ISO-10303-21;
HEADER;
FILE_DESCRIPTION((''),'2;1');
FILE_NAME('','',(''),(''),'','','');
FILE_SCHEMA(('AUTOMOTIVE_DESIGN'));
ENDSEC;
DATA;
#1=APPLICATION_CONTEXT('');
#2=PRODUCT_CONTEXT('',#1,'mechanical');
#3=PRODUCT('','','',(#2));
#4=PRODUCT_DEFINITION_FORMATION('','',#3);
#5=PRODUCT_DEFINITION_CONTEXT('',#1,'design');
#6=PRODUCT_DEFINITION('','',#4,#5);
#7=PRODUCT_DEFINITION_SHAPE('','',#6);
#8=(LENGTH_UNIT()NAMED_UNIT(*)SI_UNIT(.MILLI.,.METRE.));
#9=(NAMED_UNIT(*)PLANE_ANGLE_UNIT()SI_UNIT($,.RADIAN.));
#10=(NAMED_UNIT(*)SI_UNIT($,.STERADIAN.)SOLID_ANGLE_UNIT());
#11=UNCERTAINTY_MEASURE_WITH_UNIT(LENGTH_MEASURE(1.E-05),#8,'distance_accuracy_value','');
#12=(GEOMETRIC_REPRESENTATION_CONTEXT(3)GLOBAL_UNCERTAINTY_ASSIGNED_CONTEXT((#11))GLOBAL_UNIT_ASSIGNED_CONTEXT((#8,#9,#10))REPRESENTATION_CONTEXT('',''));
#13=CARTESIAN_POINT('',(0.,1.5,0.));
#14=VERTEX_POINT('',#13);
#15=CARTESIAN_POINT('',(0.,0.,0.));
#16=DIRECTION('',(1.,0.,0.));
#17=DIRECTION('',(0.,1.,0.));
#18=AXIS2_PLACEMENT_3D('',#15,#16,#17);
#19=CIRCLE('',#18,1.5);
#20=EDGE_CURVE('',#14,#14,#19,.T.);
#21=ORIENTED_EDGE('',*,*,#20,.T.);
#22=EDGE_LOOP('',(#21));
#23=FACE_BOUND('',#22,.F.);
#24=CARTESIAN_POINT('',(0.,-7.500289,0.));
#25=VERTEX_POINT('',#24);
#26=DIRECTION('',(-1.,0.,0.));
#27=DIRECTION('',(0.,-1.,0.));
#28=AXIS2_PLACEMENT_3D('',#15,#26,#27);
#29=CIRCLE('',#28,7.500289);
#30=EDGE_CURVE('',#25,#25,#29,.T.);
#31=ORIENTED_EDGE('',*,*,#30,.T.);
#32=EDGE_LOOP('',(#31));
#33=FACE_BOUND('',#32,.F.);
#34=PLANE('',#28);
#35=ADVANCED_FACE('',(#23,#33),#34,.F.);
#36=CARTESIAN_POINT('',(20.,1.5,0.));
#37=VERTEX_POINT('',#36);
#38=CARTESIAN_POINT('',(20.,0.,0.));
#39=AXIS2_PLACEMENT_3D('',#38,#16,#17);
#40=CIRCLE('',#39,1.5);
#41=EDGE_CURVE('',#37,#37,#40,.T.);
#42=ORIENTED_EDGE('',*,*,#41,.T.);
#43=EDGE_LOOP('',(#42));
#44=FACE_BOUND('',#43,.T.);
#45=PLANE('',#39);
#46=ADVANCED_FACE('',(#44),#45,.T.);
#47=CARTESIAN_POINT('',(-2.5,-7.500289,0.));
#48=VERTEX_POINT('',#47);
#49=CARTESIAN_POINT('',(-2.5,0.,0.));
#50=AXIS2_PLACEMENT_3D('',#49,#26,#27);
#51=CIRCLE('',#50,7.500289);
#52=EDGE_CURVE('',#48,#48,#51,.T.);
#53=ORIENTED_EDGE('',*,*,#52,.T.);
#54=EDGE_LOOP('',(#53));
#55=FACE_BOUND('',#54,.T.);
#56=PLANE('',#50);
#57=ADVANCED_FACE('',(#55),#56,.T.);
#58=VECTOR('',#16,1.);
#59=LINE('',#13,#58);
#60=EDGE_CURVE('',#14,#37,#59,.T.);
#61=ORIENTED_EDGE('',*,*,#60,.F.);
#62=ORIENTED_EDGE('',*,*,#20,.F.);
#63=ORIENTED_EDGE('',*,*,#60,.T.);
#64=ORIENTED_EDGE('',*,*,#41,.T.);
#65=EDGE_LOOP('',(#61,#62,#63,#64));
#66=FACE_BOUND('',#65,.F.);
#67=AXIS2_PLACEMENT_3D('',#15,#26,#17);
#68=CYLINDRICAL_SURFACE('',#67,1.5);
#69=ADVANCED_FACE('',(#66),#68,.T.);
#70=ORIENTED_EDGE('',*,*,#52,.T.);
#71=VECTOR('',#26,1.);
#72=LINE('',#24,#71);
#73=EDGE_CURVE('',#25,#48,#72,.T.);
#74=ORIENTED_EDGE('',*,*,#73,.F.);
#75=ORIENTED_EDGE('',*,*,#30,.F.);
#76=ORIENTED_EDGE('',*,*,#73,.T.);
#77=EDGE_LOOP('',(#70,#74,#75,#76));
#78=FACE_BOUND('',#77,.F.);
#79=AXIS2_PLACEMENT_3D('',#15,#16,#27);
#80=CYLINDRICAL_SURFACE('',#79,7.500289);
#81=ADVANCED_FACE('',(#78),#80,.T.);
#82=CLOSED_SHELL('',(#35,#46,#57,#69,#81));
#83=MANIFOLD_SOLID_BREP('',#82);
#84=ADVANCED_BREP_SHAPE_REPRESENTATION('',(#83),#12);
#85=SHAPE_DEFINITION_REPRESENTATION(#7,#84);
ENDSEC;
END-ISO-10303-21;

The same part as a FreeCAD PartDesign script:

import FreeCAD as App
import Part
import Sketcher
Q = App.Units.Quantity

doc = App.newDocument("Part")
params = doc.addObject("Spreadsheet::Sheet", "Params")
for row, (alias, value) in enumerate([
    ("sketch1_diameter", "3 mm"),
    ("pad1_length", "20 mm"),
    ("pad2_length", "2.5 mm"),
], start=1):
    params.set(f"A{row}", alias)
    params.set(f"B{row}", "=" + value)
    params.setAlias(f"B{row}", alias)

body = doc.addObject("PartDesign::Body", "Body")

# Sketch on YZ plane
sketch1 = body.newObject("Sketcher::SketchObject", "Sketch")
sketch1.AttachmentSupport = (doc.getObject("YZ_Plane"), [""])
sketch1.MapMode = "FlatFace"
sketch1.addGeometry(Part.Circle(App.Vector(0, 0, 0), App.Vector(0, 0, 1), 1.5), False)
sketch1.addConstraint(Sketcher.Constraint("Coincident", 0, 3, -1, 1))
sketch1.addConstraint(Sketcher.Constraint("Diameter", 0, Q("3 mm")))
sketch1.setExpression("Constraints[1]", "Params.sketch1_diameter")
pad1 = body.newObject("PartDesign::Pad", "Pad")
pad1.Profile = sketch1
pad1.setExpression("Length", "Params.pad1_length")

# Sketch on YZ plane
sketch2 = body.newObject("Sketcher::SketchObject", "Sketch001")
sketch2.AttachmentSupport = (doc.getObject("YZ_Plane"), [""])
sketch2.MapMode = "FlatFace"
sketch2.addGeometry(Part.Circle(App.Vector(0, 0, 0), App.Vector(0, 0, 1), 8), False)
sketch2.addConstraint(Sketcher.Constraint("Coincident", 0, 3, -1, 1))
sketch2.addConstraint(Sketcher.Constraint("Diameter", 0, Q("15.000578 mm")))
pad2 = body.newObject("PartDesign::Pad", "Pad001")
pad2.Profile = sketch2
pad2.setExpression("Length", "Params.pad2_length")
pad2.Reversed = True

doc.recompute()
